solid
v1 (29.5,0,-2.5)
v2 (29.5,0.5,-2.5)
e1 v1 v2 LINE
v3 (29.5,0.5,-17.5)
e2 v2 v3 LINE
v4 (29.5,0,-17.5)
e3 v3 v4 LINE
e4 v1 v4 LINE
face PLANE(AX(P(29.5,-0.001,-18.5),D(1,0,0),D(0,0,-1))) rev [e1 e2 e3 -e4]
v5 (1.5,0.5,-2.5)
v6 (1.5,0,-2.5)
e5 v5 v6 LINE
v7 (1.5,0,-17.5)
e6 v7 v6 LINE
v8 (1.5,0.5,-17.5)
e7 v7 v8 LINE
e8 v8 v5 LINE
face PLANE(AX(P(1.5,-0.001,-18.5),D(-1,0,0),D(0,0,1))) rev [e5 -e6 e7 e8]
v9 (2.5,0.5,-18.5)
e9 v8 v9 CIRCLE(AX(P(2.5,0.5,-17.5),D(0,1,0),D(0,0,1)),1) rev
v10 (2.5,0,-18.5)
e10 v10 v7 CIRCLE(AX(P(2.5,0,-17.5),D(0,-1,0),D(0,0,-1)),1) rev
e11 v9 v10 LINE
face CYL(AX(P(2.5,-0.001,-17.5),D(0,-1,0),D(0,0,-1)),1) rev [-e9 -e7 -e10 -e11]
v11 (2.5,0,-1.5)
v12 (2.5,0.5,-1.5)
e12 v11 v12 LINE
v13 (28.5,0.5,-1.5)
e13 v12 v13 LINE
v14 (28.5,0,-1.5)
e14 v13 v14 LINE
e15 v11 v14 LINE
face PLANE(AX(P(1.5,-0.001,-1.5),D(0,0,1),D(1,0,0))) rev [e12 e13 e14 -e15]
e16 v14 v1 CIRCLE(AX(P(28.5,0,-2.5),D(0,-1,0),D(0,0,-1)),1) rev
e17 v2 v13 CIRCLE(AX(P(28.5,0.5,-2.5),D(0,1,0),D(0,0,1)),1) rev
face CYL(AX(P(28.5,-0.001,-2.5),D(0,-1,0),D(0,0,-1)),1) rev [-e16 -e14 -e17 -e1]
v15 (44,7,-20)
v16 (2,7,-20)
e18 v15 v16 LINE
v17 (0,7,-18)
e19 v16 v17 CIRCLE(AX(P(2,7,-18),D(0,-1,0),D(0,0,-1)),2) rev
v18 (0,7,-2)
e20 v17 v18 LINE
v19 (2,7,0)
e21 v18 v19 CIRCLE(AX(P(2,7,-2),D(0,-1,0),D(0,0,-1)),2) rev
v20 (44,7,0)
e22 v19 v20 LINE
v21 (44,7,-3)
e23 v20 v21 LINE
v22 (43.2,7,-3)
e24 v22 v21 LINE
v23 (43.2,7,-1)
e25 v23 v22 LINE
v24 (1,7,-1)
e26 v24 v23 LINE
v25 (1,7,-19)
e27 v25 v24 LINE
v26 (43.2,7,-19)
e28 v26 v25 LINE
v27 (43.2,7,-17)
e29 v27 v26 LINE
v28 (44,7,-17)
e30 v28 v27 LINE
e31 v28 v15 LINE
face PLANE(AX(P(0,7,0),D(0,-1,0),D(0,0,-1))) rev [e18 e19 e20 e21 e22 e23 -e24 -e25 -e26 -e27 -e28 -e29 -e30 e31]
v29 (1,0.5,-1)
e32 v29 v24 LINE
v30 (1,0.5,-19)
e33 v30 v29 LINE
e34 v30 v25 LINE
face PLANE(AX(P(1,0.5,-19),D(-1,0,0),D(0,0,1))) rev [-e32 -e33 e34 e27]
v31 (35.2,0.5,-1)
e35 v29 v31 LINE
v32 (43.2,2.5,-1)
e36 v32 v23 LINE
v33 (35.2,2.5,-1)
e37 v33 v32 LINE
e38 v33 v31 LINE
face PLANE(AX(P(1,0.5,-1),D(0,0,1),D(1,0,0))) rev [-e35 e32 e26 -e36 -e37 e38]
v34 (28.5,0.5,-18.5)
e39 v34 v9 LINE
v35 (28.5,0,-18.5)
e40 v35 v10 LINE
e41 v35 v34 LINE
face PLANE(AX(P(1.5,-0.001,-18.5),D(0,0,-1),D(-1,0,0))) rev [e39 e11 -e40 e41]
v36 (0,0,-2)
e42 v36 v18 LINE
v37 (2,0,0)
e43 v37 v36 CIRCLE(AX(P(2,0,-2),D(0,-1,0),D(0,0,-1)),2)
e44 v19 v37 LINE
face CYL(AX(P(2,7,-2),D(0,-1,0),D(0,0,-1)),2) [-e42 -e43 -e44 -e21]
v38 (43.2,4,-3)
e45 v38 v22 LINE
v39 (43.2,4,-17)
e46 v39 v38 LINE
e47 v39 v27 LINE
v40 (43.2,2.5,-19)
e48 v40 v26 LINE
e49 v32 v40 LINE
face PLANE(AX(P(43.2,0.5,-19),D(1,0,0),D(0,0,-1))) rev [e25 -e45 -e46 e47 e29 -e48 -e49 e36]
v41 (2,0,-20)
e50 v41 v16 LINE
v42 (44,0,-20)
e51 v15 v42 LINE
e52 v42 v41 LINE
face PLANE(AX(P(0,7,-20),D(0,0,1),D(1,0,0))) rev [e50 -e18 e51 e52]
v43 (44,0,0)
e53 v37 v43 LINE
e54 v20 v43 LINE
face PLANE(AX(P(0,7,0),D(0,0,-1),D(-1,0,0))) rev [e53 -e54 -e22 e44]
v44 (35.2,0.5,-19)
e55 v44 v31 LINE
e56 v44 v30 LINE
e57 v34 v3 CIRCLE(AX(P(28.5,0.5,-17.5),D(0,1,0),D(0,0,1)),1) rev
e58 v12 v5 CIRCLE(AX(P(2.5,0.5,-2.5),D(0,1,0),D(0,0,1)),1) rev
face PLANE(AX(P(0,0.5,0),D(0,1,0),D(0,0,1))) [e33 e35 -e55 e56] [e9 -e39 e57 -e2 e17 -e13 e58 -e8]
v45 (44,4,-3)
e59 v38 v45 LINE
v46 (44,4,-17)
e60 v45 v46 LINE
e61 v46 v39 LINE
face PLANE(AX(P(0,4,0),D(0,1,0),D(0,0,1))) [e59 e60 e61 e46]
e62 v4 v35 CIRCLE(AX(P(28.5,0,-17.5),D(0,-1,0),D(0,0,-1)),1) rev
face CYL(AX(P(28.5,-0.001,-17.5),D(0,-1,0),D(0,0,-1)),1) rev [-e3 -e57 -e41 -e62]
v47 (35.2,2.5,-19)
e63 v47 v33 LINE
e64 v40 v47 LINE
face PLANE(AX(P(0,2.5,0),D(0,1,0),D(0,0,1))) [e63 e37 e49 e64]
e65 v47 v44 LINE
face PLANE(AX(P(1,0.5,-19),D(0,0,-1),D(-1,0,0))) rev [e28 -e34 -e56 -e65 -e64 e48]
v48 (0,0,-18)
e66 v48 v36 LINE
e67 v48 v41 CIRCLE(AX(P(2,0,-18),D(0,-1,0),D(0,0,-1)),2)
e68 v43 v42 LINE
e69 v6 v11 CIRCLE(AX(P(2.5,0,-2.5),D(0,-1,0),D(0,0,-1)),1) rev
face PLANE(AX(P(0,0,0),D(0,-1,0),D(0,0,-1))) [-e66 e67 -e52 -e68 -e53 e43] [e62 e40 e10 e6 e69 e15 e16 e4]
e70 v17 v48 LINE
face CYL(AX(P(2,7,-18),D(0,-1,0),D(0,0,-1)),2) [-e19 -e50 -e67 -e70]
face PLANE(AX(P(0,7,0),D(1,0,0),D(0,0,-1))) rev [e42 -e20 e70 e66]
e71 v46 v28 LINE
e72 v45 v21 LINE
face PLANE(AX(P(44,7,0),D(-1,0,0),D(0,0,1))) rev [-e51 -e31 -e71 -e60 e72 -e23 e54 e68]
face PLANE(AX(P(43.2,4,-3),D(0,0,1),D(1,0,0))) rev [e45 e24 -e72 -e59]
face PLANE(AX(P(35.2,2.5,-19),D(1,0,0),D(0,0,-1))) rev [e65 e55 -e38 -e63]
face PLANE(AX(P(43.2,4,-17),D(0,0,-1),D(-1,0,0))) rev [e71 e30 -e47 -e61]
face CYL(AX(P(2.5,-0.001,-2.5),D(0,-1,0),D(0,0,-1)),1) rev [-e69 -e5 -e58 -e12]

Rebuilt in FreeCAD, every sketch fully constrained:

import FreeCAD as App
import Part
import Sketcher
from FreeCAD import Vector
Q = App.Units.Quantity


def edges_at(feature, points):
    """Names of the edges that pass closest to the given points."""
    edges = feature.Shape.Edges
    near = lambda p: min(range(len(edges)), key=lambda i: edges[i].distToShape(Part.Vertex(*p))[0])
    return sorted({f"Edge{near(p) + 1}" for p in points})


def add_polygon(sketch, points):
    """Adds a closed chain of lines whose ends are joined by coincident constraints."""
    first, n = sketch.GeometryCount, len(points)
    for a, b in zip(points, points[1:] + points[:1]):
        sketch.addGeometry(Part.LineSegment(App.Vector(*a, 0), App.Vector(*b, 0)), False)
    for i in range(n):
        sketch.addConstraint(Sketcher.Constraint("Coincident", first + i, 2, first + (i + 1) % n, 1))

doc = App.newDocument("Part")
body = doc.addObject("PartDesign::Body", "Body")

# Sketch on XZ plane
sketch1 = doc.addObject("Sketcher::SketchObject", "Sketch")
body.addObject(sketch1)
sketch1.AttachmentSupport = (doc.XZ_Plane, [""])
sketch1.MapMode = "FlatFace"
add_polygon(sketch1, [(0, -20), (0, 0), (44, 0), (44, -20)])  # lines 0-3
sketch1.addConstraint([
    Sketcher.Constraint("Vertical", 0),
    Sketcher.Constraint("Horizontal", 1),
    Sketcher.Constraint("Vertical", 2),
    Sketcher.Constraint("Horizontal", 3),
    Sketcher.Constraint("Coincident", 0, 2, -1, 1),
    Sketcher.Constraint("DistanceX", 1, 1, 1, 2, Q("44 mm")),
    Sketcher.Constraint("DistanceY", 0, 1, 0, 2, Q("20 mm")),
])
pad1 = doc.addObject("PartDesign::Pad", "Pad")
body.addObject(pad1)
pad1.Profile = sketch1
pad1.Length = 7
pad1.Reversed = True

# Sketch on XZ plane
sketch2 = doc.addObject("Sketcher::SketchObject", "Sketch001")
body.addObject(sketch2)
sketch2.AttachmentSupport = (doc.XZ_Plane, [""])
sketch2.MapMode = "FlatFace"
sketch2.AttachmentOffset = App.Placement(Vector(0, 0, -7), App.Rotation())
add_polygon(sketch2, [(1, -19), (1, -1), (43.2, -1), (43.2, -19)])  # lines 0-3
sketch2.addConstraint([
    Sketcher.Constraint("Vertical", 0),
    Sketcher.Constraint("Horizontal", 1),
    Sketcher.Constraint("Vertical", 2),
    Sketcher.Constraint("Horizontal", 3),
    Sketcher.Constraint("DistanceY", 0, 1, 0, 2, Q("18 mm")),
    Sketcher.Constraint("DistanceX", 1, 1, 1, 2, Q("42.2 mm")),
    Sketcher.Constraint("DistanceX", -1, 1, 0, 2, Q("1 mm")),
    Sketcher.Constraint("DistanceY", 0, 2, -1, 1, Q("1 mm")),
])
pocket1 = doc.addObject("PartDesign::Pocket", "Pocket")
body.addObject(pocket1)
pocket1.Profile = sketch2
pocket1.Length = 6.5
pocket1.Reversed = True

# Sketch on XZ plane
sketch3 = doc.addObject("Sketcher::SketchObject", "Sketch002")
body.addObject(sketch3)
sketch3.AttachmentSupport = (doc.XZ_Plane, [""])
sketch3.MapMode = "FlatFace"
sketch3.AttachmentOffset = App.Placement(Vector(0, 0, -0.5), App.Rotation())
add_polygon(sketch3, [(1.5, -18.5), (1.5, -1.5), (29.5, -1.5), (29.5, -18.5)])  # lines 0-3
sketch3.addConstraint([
    Sketcher.Constraint("Vertical", 0),
    Sketcher.Constraint("Horizontal", 1),
    Sketcher.Constraint("Vertical", 2),
    Sketcher.Constraint("Horizontal", 3),
    Sketcher.Constraint("DistanceX", 1, 1, 1, 2, Q("28 mm")),
    Sketcher.Constraint("DistanceY", 0, 1, 0, 2, Q("17 mm")),
    Sketcher.Constraint("DistanceX", -1, 1, 0, 2, Q("1.5 mm")),
    Sketcher.Constraint("DistanceY", 0, 2, -1, 1, Q("1.5 mm")),
])
pocket2 = doc.addObject("PartDesign::Pocket", "Pocket001")
body.addObject(pocket2)
pocket2.Profile = sketch3
pocket2.Type = "UpToFirst"
pocket2.Reversed = True

# Sketch on XZ plane
sketch4 = doc.addObject("Sketcher::SketchObject", "Sketch003")
body.addObject(sketch4)
sketch4.AttachmentSupport = (doc.XZ_Plane, [""])
sketch4.MapMode = "FlatFace"
sketch4.AttachmentOffset = App.Placement(Vector(0, 0, -0.5), App.Rotation())
add_polygon(sketch4, [(35.2, -19), (35.2, -1), (43.2, -1), (43.2, -19)])  # lines 0-3
sketch4.addConstraint([
    Sketcher.Constraint("Vertical", 0),
    Sketcher.Constraint("Horizontal", 1),
    Sketcher.Constraint("Vertical", 2),
    Sketcher.Constraint("Horizontal", 3),
    Sketcher.Constraint("DistanceX", 1, 1, 1, 2, Q("8 mm")),
    Sketcher.Constraint("DistanceY", 0, 1, 0, 2, Q("18 mm")),
    Sketcher.Constraint("DistanceY", 0, 2, -1, 1, Q("1 mm")),
    Sketcher.Constraint("DistanceX", -1, 1, 0, 2, Q("35.2 mm")),
])
pad2 = doc.addObject("PartDesign::Pad", "Pad001")
body.addObject(pad2)
pad2.Profile = sketch4
pad2.Length = 2
pad2.Reversed = True

# Sketch on XZ plane
sketch5 = doc.addObject("Sketcher::SketchObject", "Sketch004")
body.addObject(sketch5)
sketch5.AttachmentSupport = (doc.XZ_Plane, [""])
sketch5.MapMode = "FlatFace"
sketch5.AttachmentOffset = App.Placement(Vector(0, 0, -7), App.Rotation())
add_polygon(sketch5, [(43.2, -17), (43.2, -3), (44, -3), (44, -17)])  # lines 0-3
sketch5.addConstraint([
    Sketcher.Constraint("Vertical", 0),
    Sketcher.Constraint("Horizontal", 1),
    Sketcher.Constraint("Vertical", 2),
    Sketcher.Constraint("Horizontal", 3),
    Sketcher.Constraint("DistanceY", 0, 1, 0, 2, Q("14 mm")),
    Sketcher.Constraint("DistanceX", 1, 1, 1, 2, Q("0.8 mm")),
    Sketcher.Constraint("DistanceY", 0, 2, -1, 1, Q("3 mm")),
    Sketcher.Constraint("DistanceX", -1, 1, 1, 2, Q("44 mm")),
])
pocket3 = doc.addObject("PartDesign::Pocket", "Pocket002")
body.addObject(pocket3)
pocket3.Profile = sketch5
pocket3.Length = 3
pocket3.Reversed = True
doc.recompute()

fillet = doc.addObject("PartDesign::Fillet", "Fillet")
body.addObject(fillet)
fillet.Base = (pocket3, edges_at(pocket3, [(0, 3.5, -20), (0, 3.5, 0)]))
fillet.Radius = 2
doc.recompute()

fillet2 = doc.addObject("PartDesign::Fillet", "Fillet001")
body.addObject(fillet2)
fillet2.Base = (fillet, edges_at(fillet, [
    (1.5, 0.25, -1.5),
    (1.5, 0.25, -18.5),
    (29.5, 0.25, -18.5),
    (29.5, 0.25, -1.5),
]))
fillet2.Radius = 1

doc.recompute()
